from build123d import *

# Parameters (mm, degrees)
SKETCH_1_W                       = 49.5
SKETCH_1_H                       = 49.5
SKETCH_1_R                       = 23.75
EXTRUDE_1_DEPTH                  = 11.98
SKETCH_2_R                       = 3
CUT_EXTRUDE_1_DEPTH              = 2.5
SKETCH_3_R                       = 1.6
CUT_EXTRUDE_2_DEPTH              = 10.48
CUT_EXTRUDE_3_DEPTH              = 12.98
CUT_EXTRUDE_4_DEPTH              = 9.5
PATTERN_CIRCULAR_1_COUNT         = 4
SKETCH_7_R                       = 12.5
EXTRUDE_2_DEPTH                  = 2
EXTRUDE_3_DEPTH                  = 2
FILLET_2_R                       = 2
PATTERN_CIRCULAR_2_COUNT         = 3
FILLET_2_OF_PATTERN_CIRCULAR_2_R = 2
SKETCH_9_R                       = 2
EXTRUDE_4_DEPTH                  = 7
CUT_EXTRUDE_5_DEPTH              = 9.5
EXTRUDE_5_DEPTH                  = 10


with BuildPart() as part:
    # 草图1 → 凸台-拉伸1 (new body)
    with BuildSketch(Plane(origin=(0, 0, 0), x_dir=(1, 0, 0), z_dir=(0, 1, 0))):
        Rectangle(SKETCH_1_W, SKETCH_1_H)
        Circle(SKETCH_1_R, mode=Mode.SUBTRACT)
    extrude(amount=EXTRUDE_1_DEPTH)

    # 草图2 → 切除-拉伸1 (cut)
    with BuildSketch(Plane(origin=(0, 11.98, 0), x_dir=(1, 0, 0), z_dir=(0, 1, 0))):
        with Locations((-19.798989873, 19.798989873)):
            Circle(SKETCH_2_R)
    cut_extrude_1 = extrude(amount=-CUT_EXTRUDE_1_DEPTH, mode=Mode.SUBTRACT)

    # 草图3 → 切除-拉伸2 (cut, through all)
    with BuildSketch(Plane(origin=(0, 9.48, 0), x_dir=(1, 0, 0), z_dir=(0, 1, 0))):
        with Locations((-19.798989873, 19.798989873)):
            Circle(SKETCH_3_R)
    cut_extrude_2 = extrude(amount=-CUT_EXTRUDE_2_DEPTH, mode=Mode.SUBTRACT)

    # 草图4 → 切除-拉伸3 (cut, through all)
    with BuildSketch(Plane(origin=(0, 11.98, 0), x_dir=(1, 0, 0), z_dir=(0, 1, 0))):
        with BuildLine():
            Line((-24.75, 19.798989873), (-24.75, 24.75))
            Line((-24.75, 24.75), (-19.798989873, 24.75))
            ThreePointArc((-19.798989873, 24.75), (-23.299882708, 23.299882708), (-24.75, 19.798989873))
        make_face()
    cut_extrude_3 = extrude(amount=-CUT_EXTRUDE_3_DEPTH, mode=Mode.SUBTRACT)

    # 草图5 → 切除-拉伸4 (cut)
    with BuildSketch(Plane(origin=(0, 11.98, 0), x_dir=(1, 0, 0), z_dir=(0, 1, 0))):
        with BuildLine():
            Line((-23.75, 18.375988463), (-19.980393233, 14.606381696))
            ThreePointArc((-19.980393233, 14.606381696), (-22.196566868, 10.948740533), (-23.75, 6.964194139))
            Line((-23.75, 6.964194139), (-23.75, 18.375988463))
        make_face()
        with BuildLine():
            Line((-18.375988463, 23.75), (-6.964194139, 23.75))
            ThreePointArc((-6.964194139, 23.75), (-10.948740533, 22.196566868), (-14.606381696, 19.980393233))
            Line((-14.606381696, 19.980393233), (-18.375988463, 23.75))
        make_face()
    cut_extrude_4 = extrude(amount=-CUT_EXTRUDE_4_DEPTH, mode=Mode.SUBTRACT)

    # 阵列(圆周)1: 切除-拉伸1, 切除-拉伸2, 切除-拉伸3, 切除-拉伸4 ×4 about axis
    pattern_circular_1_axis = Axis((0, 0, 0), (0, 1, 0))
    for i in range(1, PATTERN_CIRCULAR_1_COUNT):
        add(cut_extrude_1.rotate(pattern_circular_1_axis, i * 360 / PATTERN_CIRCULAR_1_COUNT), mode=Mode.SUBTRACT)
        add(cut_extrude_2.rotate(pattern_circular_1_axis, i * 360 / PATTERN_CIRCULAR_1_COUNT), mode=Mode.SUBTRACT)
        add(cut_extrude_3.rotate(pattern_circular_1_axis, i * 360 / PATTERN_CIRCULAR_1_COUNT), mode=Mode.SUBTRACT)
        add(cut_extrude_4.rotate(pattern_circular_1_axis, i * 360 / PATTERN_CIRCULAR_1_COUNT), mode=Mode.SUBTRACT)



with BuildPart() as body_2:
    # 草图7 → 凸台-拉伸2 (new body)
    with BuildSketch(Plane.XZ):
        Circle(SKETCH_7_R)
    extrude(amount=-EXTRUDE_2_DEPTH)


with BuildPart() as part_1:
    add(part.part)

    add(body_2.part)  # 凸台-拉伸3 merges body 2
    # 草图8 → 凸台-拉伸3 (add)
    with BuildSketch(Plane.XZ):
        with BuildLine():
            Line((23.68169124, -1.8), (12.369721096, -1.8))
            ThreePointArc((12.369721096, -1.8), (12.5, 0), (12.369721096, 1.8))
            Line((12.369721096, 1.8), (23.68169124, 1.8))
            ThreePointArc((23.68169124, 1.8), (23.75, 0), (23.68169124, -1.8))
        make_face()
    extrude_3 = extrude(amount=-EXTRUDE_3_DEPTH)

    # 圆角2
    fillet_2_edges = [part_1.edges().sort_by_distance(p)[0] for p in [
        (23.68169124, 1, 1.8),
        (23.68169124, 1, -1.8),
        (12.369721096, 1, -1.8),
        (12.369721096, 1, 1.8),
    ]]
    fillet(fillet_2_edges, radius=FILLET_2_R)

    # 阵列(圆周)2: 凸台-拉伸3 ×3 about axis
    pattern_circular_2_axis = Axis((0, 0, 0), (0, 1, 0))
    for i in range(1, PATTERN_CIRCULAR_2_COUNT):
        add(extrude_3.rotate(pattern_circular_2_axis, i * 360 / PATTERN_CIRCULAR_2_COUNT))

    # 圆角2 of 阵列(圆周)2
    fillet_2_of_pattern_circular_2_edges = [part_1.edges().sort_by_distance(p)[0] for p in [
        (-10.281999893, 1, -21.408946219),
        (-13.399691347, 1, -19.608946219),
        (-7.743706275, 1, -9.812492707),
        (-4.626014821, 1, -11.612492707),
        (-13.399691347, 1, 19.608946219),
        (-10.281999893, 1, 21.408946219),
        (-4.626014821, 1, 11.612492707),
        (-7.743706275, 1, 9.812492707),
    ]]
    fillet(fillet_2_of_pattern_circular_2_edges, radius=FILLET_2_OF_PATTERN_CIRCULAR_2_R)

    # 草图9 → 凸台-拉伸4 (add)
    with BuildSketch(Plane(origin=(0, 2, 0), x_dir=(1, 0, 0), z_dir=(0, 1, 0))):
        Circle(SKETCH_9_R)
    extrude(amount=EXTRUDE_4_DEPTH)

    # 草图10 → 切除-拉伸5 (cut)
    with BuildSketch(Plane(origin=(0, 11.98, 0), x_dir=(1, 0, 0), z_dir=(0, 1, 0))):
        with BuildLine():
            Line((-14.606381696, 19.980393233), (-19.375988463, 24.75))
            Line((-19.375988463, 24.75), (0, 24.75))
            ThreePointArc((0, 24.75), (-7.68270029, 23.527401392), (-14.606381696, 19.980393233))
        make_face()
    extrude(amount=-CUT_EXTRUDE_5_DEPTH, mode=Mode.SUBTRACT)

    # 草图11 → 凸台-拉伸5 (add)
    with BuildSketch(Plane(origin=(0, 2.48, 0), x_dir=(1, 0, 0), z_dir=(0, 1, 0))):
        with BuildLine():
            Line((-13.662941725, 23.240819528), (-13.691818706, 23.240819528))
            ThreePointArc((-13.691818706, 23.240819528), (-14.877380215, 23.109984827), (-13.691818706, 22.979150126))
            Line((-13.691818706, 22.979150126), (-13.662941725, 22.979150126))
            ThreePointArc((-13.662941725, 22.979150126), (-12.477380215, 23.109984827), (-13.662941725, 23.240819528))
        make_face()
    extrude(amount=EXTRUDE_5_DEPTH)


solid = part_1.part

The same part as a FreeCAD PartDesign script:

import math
import FreeCAD as App
import Part
import Sketcher

V = App.Vector
Q = App.Units.Quantity


def edges_at(feature, points):
    """Names of the edges that pass closest to the given points."""
    edges = feature.Shape.Edges
    near = lambda p: min(range(len(edges)), key=lambda i: edges[i].distToShape(Part.Vertex(*p))[0])
    return sorted({f"Edge{near(p) + 1}" for p in points})

doc = App.newDocument("Part")
params = doc.addObject("Spreadsheet::Sheet", "Params")
for row, (alias, value) in enumerate([
    ("sketch1_diameter", "47.5 mm"),
    ("sketch1_width", "49.5 mm"),
    ("pad1_length", "11.98 mm"),
    ("sketch2_diameter", "6 mm"),
    ("pocket1_length", "2.5 mm"),
    ("sketch3_diameter", "3.2 mm"),
    ("sketch5_radius", "24.75 mm"),
    ("pocket4_length", "9.5 mm"),
    ("sketch6_diameter", "25 mm"),
    ("pad2_length", "2 mm"),
    ("sketch7_radius", "12.5 mm"),
    ("sketch7_radius2", "23.75 mm"),
    ("pad3_length", "2 mm"),
    ("fillet_radius", "2 mm"),
    ("fillet2_radius", "2 mm"),
    ("sketch8_diameter", "4 mm"),
    ("pad4_length", "7 mm"),
    ("sketch9_radius", "24.75 mm"),
    ("pocket5_length", "9.5 mm"),
    ("sketch10_radius", "0.6 mm"),
    ("pad5_length", "10 mm"),
], start=1):
    params.set(f"A{row}", alias)
    params.set(f"B{row}", "=" + value)
    params.setAlias(f"B{row}", alias)

body = doc.addObject("PartDesign::Body", "Body")

# Sketch on XZ plane
sketch1 = body.newObject("Sketcher::SketchObject", "Sketch")
sketch1.AttachmentSupport = (doc.getObject("XZ_Plane"), [""])
sketch1.MapMode = "FlatFace"
sketch1.addGeometry([
    Part.LineSegment(V(-25, -25, 0), V(-25, 25, 0)),  # 0
    Part.LineSegment(V(-25, 25, 0), V(25, 25, 0)),  # 1
    Part.LineSegment(V(25, 25, 0), V(25, -25, 0)),  # 2
    Part.LineSegment(V(25, -25, 0), V(-25, -25, 0)),  # 3
    Part.Circle(V(0, 0, 0), V(0, 0, 1), 24),  # 4
], False)
sketch1.addConstraint([
    Sketcher.Constraint("Coincident", 0, 2, 1, 1),
    Sketcher.Constraint("Coincident", 1, 2, 2, 1),
    Sketcher.Constraint("Coincident", 2, 2, 3, 1),
    Sketcher.Constraint("Coincident", 3, 2, 0, 1),
    Sketcher.Constraint("Vertical", 0),
    Sketcher.Constraint("Horizontal", 1),
    Sketcher.Constraint("Vertical", 2),
    Sketcher.Constraint("Horizontal", 3),
    Sketcher.Constraint("Coincident", 4, 3, -1, 1),
    Sketcher.Constraint("Symmetric", 0, 2, 2, 2, -1, 1),
    Sketcher.Constraint("Equal", 3, 0),
    Sketcher.Constraint("Diameter", 4, 47.5),
    Sketcher.Constraint("DistanceX", 1, 1, 1, 2, 49.5),
])
sketch1.setExpression("Constraints[11]", "Params.sketch1_diameter")
sketch1.setExpression("Constraints[12]", "Params.sketch1_width")
pad1 = body.newObject("PartDesign::Pad", "Pad")
pad1.Profile = sketch1
pad1.setExpression("Length", "Params.pad1_length")
pad1.Reversed = True

# Sketch on XZ plane
sketch2 = body.newObject("Sketcher::SketchObject", "Sketch001")
sketch2.AttachmentSupport = (doc.getObject("XZ_Plane"), [""])
sketch2.MapMode = "FlatFace"
sketch2.AttachmentOffset = App.Placement(V(0, 0, -11.98), App.Rotation())
sketch2.addGeometry(Part.Circle(V(-19.8, -19.8, 0), V(0, 0, 1), 3), False)
sketch2.addConstraint([
    Sketcher.Constraint("Diameter", 0, 6.0),
    Sketcher.Constraint("DistanceX", 0, 3, -1, 1, 19.79899),
    Sketcher.Constraint("DistanceY", 0, 3, -1, 1, 19.79899),
])
sketch2.setExpression("Constraints[0]", "Params.sketch2_diameter")
pocket1 = body.newObject("PartDesign::Pocket", "Pocket")
pocket1.Profile = sketch2
pocket1.setExpression("Length", "Params.pocket1_length")
pocket1.Reversed = True

# Sketch on XZ plane
sketch3 = body.newObject("Sketcher::SketchObject", "Sketch002")
sketch3.AttachmentSupport = (doc.getObject("XZ_Plane"), [""])
sketch3.MapMode = "FlatFace"
sketch3.AttachmentOffset = App.Placement(V(0, 0, -9.48), App.Rotation())
sketch3.addGeometry(Part.Circle(V(-19.8, -19.8, 0), V(0, 0, 1), 1.6), False)
sketch3.addConstraint([
    Sketcher.Constraint("Diameter", 0, 3.2),
    Sketcher.Constraint("DistanceX", 0, 3, -1, 1, 19.79899),
    Sketcher.Constraint("DistanceY", 0, 3, -1, 1, 19.79899),
])
sketch3.setExpression("Constraints[0]", "Params.sketch3_diameter")
pocket2 = body.newObject("PartDesign::Pocket", "Pocket001")
pocket2.Profile = sketch3
pocket2.Type = "ThroughAll"
pocket2.Reversed = True

# Sketch on XZ plane
sketch4 = body.newObject("Sketcher::SketchObject", "Sketch003")
sketch4.AttachmentSupport = (doc.getObject("XZ_Plane"), [""])
sketch4.MapMode = "FlatFace"
sketch4.AttachmentOffset = App.Placement(V(0, 0, -11.98), App.Rotation())
sketch4.addGeometry([
    Part.LineSegment(V(-24.8, -24.8, 0), V(-24.8, -19.8, 0)),
    Part.ArcOfCircle(Part.Circle(V(-19.8, -19.8, 0), V(0, 0, 1), 5), math.radians(180), math.radians(270)),
    Part.LineSegment(V(-19.8, -24.8, 0), V(-24.8, -24.8, 0)),
], False)
sketch4.addConstraint([
    Sketcher.Constraint("Tangent", 0, 2, 1, 1),
    Sketcher.Constraint("Tangent", 1, 2, 2, 1),
    Sketcher.Constraint("Coincident", 2, 2, 0, 1),
    Sketcher.Constraint("Vertical", 0),
    Sketcher.Constraint("Horizontal", 2),
    Sketcher.Constraint("DistanceX", 0, 2, -1, 1, 24.75),
    Sketcher.Constraint("DistanceY", 1, 2, -1, 1, 24.75),
    Sketcher.Constraint("Radius", 1, 4.95101),
])
pocket3 = body.newObject("PartDesign::Pocket", "Pocket002")
pocket3.Profile = sketch4
pocket3.Type = "ThroughAll"
pocket3.Reversed = True

# Sketch on XZ plane
sketch5 = body.newObject("Sketcher::SketchObject", "Sketch004")
sketch5.AttachmentSupport = (doc.getObject("XZ_Plane"), [""])
sketch5.MapMode = "FlatFace"
sketch5.AttachmentOffset = App.Placement(V(0, 0, -11.98), App.Rotation())
sketch5.addGeometry([
    Part.LineSegment(V(-20, -15, 0), V(-24, -18, 0)),  # 0
    Part.LineSegment(V(-24, -18, 0), V(-24, -7, 0)),  # 1
    Part.ArcOfCircle(Part.Circle(V(0, 0, 0), V(0, 0, 1), 25), math.radians(-163.66), math.radians(-143.83)),  # 2
    Part.LineSegment(V(-7, -24, 0), V(-18, -24, 0)),  # 3
    Part.LineSegment(V(-18, -24, 0), V(-15, -20, 0)),  # 4
    Part.ArcOfCircle(Part.Circle(V(0, 0, 0), V(0, 0, 1), 25), math.radians(-126.17), math.radians(-106.34)),  # 5
], False)
sketch5.addConstraint([
    Sketcher.Constraint("Coincident", 0, 2, 1, 1),
    Sketcher.Constraint("Coincident", 1, 2, 2, 1),
    Sketcher.Constraint("Coincident", 2, 2, 0, 1),
    Sketcher.Constraint("Coincident", 3, 2, 4, 1),
    Sketcher.Constraint("Coincident", 4, 2, 5, 1),
    Sketcher.Constraint("Coincident", 5, 2, 3, 1),
    Sketcher.Constraint("Vertical", 1),
    Sketcher.Constraint("Horizontal", 3),
    Sketcher.Constraint("Coincident", 2, 3, -1, 1),
    Sketcher.Constraint("Coincident", 5, 3, -1, 1),
    Sketcher.Constraint("Equal", 2, 5),
    Sketcher.Constraint("Parallel", 0, 4),
    Sketcher.Constraint("Equal", 3, 1),
    Sketcher.Constraint("Equal", 0, 4),
    Sketcher.Constraint("Angle", 0, Q("-135 deg")),
    Sketcher.Constraint("Radius", 2, 24.75),
    Sketcher.Constraint("DistanceX", 0, 2, -1, 1, 23.75),
    Sketcher.Constraint("DistanceY", 4, 2, 1, 2, 13.016199),
])
sketch5.setExpression("Constraints[15]", "Params.sketch5_radius")
pocket4 = body.newObject("PartDesign::Pocket", "Pocket003")
pocket4.Profile = sketch5
pocket4.setExpression("Length", "Params.pocket4_length")
pocket4.Reversed = True
doc.recompute()

polarpattern = body.newObject("PartDesign::PolarPattern", "PolarPattern")
polarpattern.Originals = [pocket1, pocket2, pocket3, pocket4]
polarpattern.Axis = (doc.getObject("Y_Axis"), [""])
polarpattern.Angle = 360
polarpattern.Occurrences = 4
body.Tip = polarpattern
body2 = doc.addObject("PartDesign::Body", "Body001")

# Sketch on XZ plane
sketch6 = body2.newObject("Sketcher::SketchObject", "Sketch005")
sketch6.AttachmentSupport = (doc.getObject("XZ_Plane001"), [""])
sketch6.MapMode = "FlatFace"
sketch6.addGeometry(Part.Circle(V(0, 0, 0), V(0, 0, 1), 12), False)
sketch6.addConstraint([
    Sketcher.Constraint("Coincident", 0, 3, -1, 1),
    Sketcher.Constraint("Diameter", 0, 25.0),
])
sketch6.setExpression("Constraints[1]", "Params.sketch6_diameter")
pad2 = body2.newObject("PartDesign::Pad", "Pad001")
pad2.Profile = sketch6
pad2.setExpression("Length", "Params.pad2_length")
pad2.Reversed = True
body.AllowCompound = True
doc.recompute()

boolean = body.newObject("PartDesign::Boolean", "Boolean")
boolean.Type = "Fuse"
boolean.addObjects([body2])

# Sketch on XZ plane
sketch7 = body.newObject("Sketcher::SketchObject", "Sketch006")
sketch7.AttachmentSupport = (doc.getObject("XZ_Plane"), [""])
sketch7.MapMode = "FlatFace"
sketch7.addGeometry([
    Part.LineSegment(V(12.4, -1.8, 0), V(23.7, -1.8, 0)),
    Part.ArcOfCircle(Part.Circle(V(0, 0, 0), V(0, 0, 1), 23.7), math.radians(-4.35), math.radians(4.35)),
    Part.LineSegment(V(23.7, 1.8, 0), V(12.4, 1.8, 0)),
    Part.ArcOfCircle(Part.Circle(V(0, 0, 0), V(0, 0, 1), 12.5), math.radians(-8.28), math.radians(8.28)),
], False)
sketch7.addConstraint([
    Sketcher.Constraint("Coincident", 0, 2, 1, 1),
    Sketcher.Constraint("Coincident", 1, 2, 2, 1),
    Sketcher.Constraint("Coincident", 2, 2, 3, 2),
    Sketcher.Constraint("Coincident", 3, 1, 0, 1),
    Sketcher.Constraint("Horizontal", 0),
    Sketcher.Constraint("Horizontal", 2),
    Sketcher.Constraint("Coincident", 1, 3, -1, 1),
    Sketcher.Constraint("Coincident", 3, 3, -1, 1),
    Sketcher.Constraint("Vertical", 0, 2, 1, 2),
    Sketcher.Constraint("Radius", 3, 12.5),
    Sketcher.Constraint("Radius", 1, 23.75),
    Sketcher.Constraint("DistanceY", 0, 2, -1, 1, 1.8),
])
sketch7.setExpression("Constraints[9]", "Params.sketch7_radius")
sketch7.setExpression("Constraints[10]", "Params.sketch7_radius2")
pad3 = body.newObject("PartDesign::Pad", "Pad002")
pad3.Profile = sketch7
pad3.setExpression("Length", "Params.pad3_length")
pad3.Reversed = True
doc.recompute()

fillet = body.newObject("PartDesign::Fillet", "Fillet")
fillet.Base = (pad3, edges_at(pad3, [
    (23.682, 1, 1.8),
    (23.682, 1, -1.8),
    (12.37, 1, -1.8),
    (12.37, 1, 1.8),
]))
fillet.setExpression("Radius", "Params.fillet_radius")
doc.recompute()

polarpattern2 = body.newObject("PartDesign::PolarPattern", "PolarPattern001")
polarpattern2.Originals = [pad3]
polarpattern2.Axis = (doc.getObject("Y_Axis"), [""])
polarpattern2.Angle = 360
polarpattern2.Occurrences = 3
body.Tip = polarpattern2
doc.recompute()

fillet2 = body.newObject("PartDesign::Fillet", "Fillet001")
fillet2.Base = (polarpattern2, edges_at(polarpattern2, [
    (-10.282, 1, -21.409),
    (-13.4, 1, -19.609),
    (-7.744, 1, -9.812),
    (-4.626, 1, -11.612),
    (-13.4, 1, 19.609),
    (-10.282, 1, 21.409),
    (-4.626, 1, 11.612),
    (-7.744, 1, 9.812),
]))
fillet2.setExpression("Radius", "Params.fillet2_radius")

# Sketch on XZ plane
sketch8 = body.newObject("Sketcher::SketchObject", "Sketch007")
sketch8.AttachmentSupport = (doc.getObject("XZ_Plane"), [""])
sketch8.MapMode = "FlatFace"
sketch8.AttachmentOffset = App.Placement(V(0, 0, -2), App.Rotation())
sketch8.addGeometry(Part.Circle(V(0, 0, 0), V(0, 0, 1), 2), False)
sketch8.addConstraint([
    Sketcher.Constraint("Coincident", 0, 3, -1, 1),
    Sketcher.Constraint("Diameter", 0, 4.0),
])
sketch8.setExpression("Constraints[1]", "Params.sketch8_diameter")
pad4 = body.newObject("PartDesign::Pad", "Pad003")
pad4.Profile = sketch8
pad4.setExpression("Length", "Params.pad4_length")
pad4.Reversed = True

# Sketch on XZ plane
sketch9 = body.newObject("Sketcher::SketchObject", "Sketch008")
sketch9.AttachmentSupport = (doc.getObject("XZ_Plane"), [""])
sketch9.MapMode = "FlatFace"
sketch9.AttachmentOffset = App.Placement(V(0, 0, -11.98), App.Rotation())
sketch9.addGeometry([
    Part.LineSegment(V(-19, -25, 0), V(-15, -20, 0)),
    Part.ArcOfCircle(Part.Circle(V(0, 0, 0), V(0, 0, 1), 25), math.radians(-126), math.radians(-90)),
    Part.LineSegment(V(0, -25, 0), V(-19, -25, 0)),
], False)
sketch9.addConstraint([
    Sketcher.Constraint("Coincident", 0, 2, 1, 1),
    Sketcher.Constraint("Tangent", 1, 2, 2, 1),
    Sketcher.Constraint("Coincident", 2, 2, 0, 1),
    Sketcher.Constraint("Horizontal", 2),
    Sketcher.Constraint("Coincident", 1, 3, -1, 1),
    Sketcher.Constraint("Angle", 0, Q("45 deg")),
    Sketcher.Constraint("Radius", 1, 24.75),
    Sketcher.Constraint("DistanceX", 2, 2, 2, 1, 19.375988),
])
sketch9.setExpression("Constraints[6]", "Params.sketch9_radius")
pocket5 = body.newObject("PartDesign::Pocket", "Pocket004")
pocket5.Profile = sketch9
pocket5.setExpression("Length", "Params.pocket5_length")
pocket5.Reversed = True

# Sketch on XZ plane
sketch10 = body.newObject("Sketcher::SketchObject", "Sketch009")
sketch10.AttachmentSupport = (doc.getObject("XZ_Plane"), [""])
sketch10.MapMode = "FlatFace"
sketch10.AttachmentOffset = App.Placement(V(0, 0, -2.48), App.Rotation())
sketch10.addGeometry([
    Part.LineSegment(V(-13.663, -23.241, 0), V(-13.692, -23.241, 0)),
    Part.ArcOfCircle(Part.Circle(V(-14.277, -23.11, 0), V(0, 0, 1), 0.6), math.radians(13), math.radians(347)),
    Part.LineSegment(V(-13.692, -22.979, 0), V(-13.663, -22.979, 0)),
    Part.ArcOfCircle(Part.Circle(V(-13.077, -23.11, 0), V(0, 0, 1), 0.6), math.radians(-167), math.radians(167)),
], False)
sketch10.addConstraint([
    Sketcher.Constraint("Coincident", 0, 2, 1, 2),
    Sketcher.Constraint("Coincident", 1, 1, 2, 1),
    Sketcher.Constraint("Coincident", 2, 2, 3, 2),
    Sketcher.Constraint("Coincident", 3, 1, 0, 1),
    Sketcher.Constraint("Horizontal", 0),
    Sketcher.Constraint("Horizontal", 2),
    Sketcher.Constraint("Equal", 1, 3),
    Sketcher.Constraint("Horizontal", 1, 3, 3, 3),
    Sketcher.Constraint("Vertical", 0, 2, 1, 1),
    Sketcher.Constraint("Radius", 1, 0.6),
    Sketcher.Constraint("DistanceX", 1, 3, 3, 3, 1.2),
    Sketcher.Constraint("DistanceX", 0, 2, 0, 1, 0.028877),
    Sketcher.Constraint("DistanceX", 1, 3, -1, 1, 14.27738),
    Sketcher.Constraint("DistanceY", 0, 2, -1, 1, 23.24082),
])
sketch10.setExpression("Constraints[9]", "Params.sketch10_radius")
pad5 = body.newObject("PartDesign::Pad", "Pad004")
pad5.Profile = sketch10
pad5.setExpression("Length", "Params.pad5_length")
pad5.Reversed = True

doc.recompute()
